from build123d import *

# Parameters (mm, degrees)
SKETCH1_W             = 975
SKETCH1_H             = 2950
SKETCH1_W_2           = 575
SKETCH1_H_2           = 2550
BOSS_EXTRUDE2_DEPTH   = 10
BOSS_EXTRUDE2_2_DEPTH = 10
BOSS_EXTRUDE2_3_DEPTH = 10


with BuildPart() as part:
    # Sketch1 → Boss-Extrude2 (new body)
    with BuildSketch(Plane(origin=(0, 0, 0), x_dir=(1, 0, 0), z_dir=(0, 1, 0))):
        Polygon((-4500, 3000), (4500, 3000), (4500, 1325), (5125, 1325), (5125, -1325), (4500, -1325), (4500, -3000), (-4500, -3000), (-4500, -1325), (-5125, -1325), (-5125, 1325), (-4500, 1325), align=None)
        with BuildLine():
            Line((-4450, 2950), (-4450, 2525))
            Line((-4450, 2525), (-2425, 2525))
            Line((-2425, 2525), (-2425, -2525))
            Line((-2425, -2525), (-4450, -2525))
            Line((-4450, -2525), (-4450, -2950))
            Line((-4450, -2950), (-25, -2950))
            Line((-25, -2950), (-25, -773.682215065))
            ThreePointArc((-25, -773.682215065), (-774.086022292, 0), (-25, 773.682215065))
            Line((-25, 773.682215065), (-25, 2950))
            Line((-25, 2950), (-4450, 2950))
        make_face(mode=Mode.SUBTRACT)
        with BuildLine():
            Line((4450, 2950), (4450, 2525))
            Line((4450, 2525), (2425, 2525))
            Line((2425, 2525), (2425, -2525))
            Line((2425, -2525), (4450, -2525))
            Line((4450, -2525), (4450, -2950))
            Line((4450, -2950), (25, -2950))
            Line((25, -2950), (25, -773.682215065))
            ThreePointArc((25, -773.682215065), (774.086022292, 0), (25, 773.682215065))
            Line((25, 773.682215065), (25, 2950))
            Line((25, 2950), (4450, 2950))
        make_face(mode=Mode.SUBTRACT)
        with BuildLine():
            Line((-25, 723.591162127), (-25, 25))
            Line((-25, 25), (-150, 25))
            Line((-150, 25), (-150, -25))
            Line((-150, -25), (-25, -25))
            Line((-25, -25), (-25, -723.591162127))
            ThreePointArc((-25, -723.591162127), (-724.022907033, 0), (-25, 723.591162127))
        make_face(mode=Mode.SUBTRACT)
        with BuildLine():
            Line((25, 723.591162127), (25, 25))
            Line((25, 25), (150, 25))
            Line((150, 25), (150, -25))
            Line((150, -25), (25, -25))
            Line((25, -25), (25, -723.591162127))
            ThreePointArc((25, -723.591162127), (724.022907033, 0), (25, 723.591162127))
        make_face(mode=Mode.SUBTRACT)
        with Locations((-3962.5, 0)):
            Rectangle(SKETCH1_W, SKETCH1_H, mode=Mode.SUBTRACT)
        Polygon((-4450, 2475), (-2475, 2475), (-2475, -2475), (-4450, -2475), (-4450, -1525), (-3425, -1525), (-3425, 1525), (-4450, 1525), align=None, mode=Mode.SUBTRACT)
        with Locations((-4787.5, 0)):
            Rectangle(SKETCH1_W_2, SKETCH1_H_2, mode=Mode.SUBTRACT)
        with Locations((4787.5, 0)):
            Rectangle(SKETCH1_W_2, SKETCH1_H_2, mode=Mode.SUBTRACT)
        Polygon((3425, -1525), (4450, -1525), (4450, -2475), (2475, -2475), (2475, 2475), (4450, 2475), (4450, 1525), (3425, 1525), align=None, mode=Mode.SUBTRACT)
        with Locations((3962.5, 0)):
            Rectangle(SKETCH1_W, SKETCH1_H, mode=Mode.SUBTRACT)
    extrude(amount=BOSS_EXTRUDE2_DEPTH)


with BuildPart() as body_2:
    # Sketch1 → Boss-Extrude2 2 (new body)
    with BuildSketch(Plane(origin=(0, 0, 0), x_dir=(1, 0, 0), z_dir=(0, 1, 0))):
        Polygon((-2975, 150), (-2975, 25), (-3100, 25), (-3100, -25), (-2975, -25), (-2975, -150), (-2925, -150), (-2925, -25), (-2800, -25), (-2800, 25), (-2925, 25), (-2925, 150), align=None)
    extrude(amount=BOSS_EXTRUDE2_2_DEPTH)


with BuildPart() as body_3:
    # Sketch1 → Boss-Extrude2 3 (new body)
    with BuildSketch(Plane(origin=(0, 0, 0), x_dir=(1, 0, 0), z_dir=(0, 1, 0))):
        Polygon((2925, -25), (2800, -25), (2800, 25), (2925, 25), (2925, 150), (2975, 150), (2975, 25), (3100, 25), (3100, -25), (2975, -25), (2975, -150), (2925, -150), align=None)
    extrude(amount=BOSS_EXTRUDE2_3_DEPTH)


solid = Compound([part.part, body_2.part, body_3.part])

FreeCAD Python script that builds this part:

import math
import FreeCAD as App
import Part
import Sketcher
from FreeCAD import Vector
Q = App.Units.Quantity


def add_polygon(sketch, points):
    """Adds a closed chain of lines whose ends are joined by coincident constraints."""
    first, n = sketch.GeometryCount, len(points)
    for a, b in zip(points, points[1:] + points[:1]):
        sketch.addGeometry(Part.LineSegment(App.Vector(*a, 0), App.Vector(*b, 0)), False)
    for i in range(n):
        sketch.addConstraint(Sketcher.Constraint("Coincident", first + i, 2, first + (i + 1) % n, 1))

doc = App.newDocument("Part")
body = doc.addObject("PartDesign::Body", "Body")

sketch1 = body.newObject("Sketcher::SketchObject", "Sketch")
sketch1.AttachmentSupport = (doc.getObject("XZ_Plane"), [""])
sketch1.MapMode = "FlatFace"
add_polygon(sketch1, [(4500, -3000), (-4500, -3000), (-4500, -1325), (-5125, -1325), (-5125, 1325), (-4500, 1325), (-4500, 3000), (4500, 3000), (4500, 1325), (5125, 1325), (5125, -1325), (4500, -1325)])
add_polygon(sketch1, [(4500, 1275), (4500, -1275), (5075, -1275), (5075, 1275)])
add_polygon(sketch1, [(3475, 1475), (3475, -1475), (4450, -1475), (4450, 1475)])
add_polygon(sketch1, [(3425, 1525), (4450, 1525), (4450, 2475), (2475, 2475), (2475, -2475), (4450, -2475), (4450, -1525), (3425, -1525)])
sketch1.addGeometry(Part.LineSegment(Vector(4450, -2950, 0), Vector(4450, -2525, 0)), False)
sketch1.addGeometry(Part.LineSegment(Vector(4450, -2525, 0), Vector(2425, -2525, 0)), False)
sketch1.addGeometry(Part.LineSegment(Vector(2425, -2525, 0), Vector(2425, 2525, 0)), False)
sketch1.addGeometry(Part.LineSegment(Vector(2425, 2525, 0), Vector(4450, 2525, 0)), False)
sketch1.addGeometry(Part.LineSegment(Vector(4450, 2525, 0), Vector(4450, 2950, 0)), False)
sketch1.addGeometry(Part.LineSegment(Vector(4450, 2950, 0), Vector(25, 2950, 0)), False)
sketch1.addGeometry(Part.LineSegment(Vector(25, 2950, 0), Vector(25, 774, 0)), False)
sketch1.addGeometry(Part.ArcOfCircle(Part.Circle(Vector(0, 0, 0), Vector(0, 0, 1), 774), math.radians(-88), math.radians(88)), False)
sketch1.addGeometry(Part.LineSegment(Vector(25, -774, 0), Vector(25, -2950, 0)), False)
sketch1.addGeometry(Part.LineSegment(Vector(25, -2950, 0), Vector(4450, -2950, 0)), False)
sketch1.addGeometry(Part.ArcOfCircle(Part.Circle(Vector(0, 0, 0), Vector(0, 0, 1), 724), math.radians(-88), math.radians(88)), False)
sketch1.addGeometry(Part.LineSegment(Vector(25, 724, 0), Vector(25, 25, 0)), False)
sketch1.addGeometry(Part.LineSegment(Vector(25, 25, 0), Vector(150, 25, 0)), False)
sketch1.addGeometry(Part.LineSegment(Vector(150, 25, 0), Vector(150, -25, 0)), False)
sketch1.addGeometry(Part.LineSegment(Vector(150, -25, 0), Vector(25, -25, 0)), False)
sketch1.addGeometry(Part.LineSegment(Vector(25, -25, 0), Vector(25, -724, 0)), False)
sketch1.addGeometry(Part.LineSegment(Vector(-25, -724, 0), Vector(-25, -25, 0)), False)
sketch1.addGeometry(Part.LineSegment(Vector(-25, -25, 0), Vector(-150, -25, 0)), False)
sketch1.addGeometry(Part.LineSegment(Vector(-150, -25, 0), Vector(-150, 25, 0)), False)
sketch1.addGeometry(Part.LineSegment(Vector(-150, 25, 0), Vector(-25, 25, 0)), False)
sketch1.addGeometry(Part.LineSegment(Vector(-25, 25, 0), Vector(-25, 724, 0)), False)
sketch1.addGeometry(Part.ArcOfCircle(Part.Circle(Vector(0, 0, 0), Vector(0, 0, 1), 724), math.radians(92), math.radians(268)), False)
sketch1.addGeometry(Part.LineSegment(Vector(-4450, -2950, 0), Vector(-25, -2950, 0)), False)
sketch1.addGeometry(Part.LineSegment(Vector(-25, -2950, 0), Vector(-25, -774, 0)), False)
sketch1.addGeometry(Part.ArcOfCircle(Part.Circle(Vector(0, 0, 0), Vector(0, 0, 1), 774), math.radians(92), math.radians(268)), False)
sketch1.addGeometry(Part.LineSegment(Vector(-25, 774, 0), Vector(-25, 2950, 0)), False)
sketch1.addGeometry(Part.LineSegment(Vector(-25, 2950, 0), Vector(-4450, 2950, 0)), False)
sketch1.addGeometry(Part.LineSegment(Vector(-4450, 2950, 0), Vector(-4450, 2525, 0)), False)
sketch1.addGeometry(Part.LineSegment(Vector(-4450, 2525, 0), Vector(-2425, 2525, 0)), False)
sketch1.addGeometry(Part.LineSegment(Vector(-2425, 2525, 0), Vector(-2425, -2525, 0)), False)
sketch1.addGeometry(Part.LineSegment(Vector(-2425, -2525, 0), Vector(-4450, -2525, 0)), False)
sketch1.addGeometry(Part.LineSegment(Vector(-4450, -2525, 0), Vector(-4450, -2950, 0)), False)
add_polygon(sketch1, [(-4450, -2475), (-2475, -2475), (-2475, 2475), (-4450, 2475), (-4450, 1525), (-3425, 1525), (-3425, -1525), (-4450, -1525)])
add_polygon(sketch1, [(-4450, 1475), (-4450, -1475), (-3475, -1475), (-3475, 1475)])
add_polygon(sketch1, [(-5075, 1275), (-5075, -1275), (-4500, -1275), (-4500, 1275)])
sketch1.addConstraint(Sketcher.Constraint("Coincident", 28, 2, 29, 1))
sketch1.addConstraint(Sketcher.Constraint("Coincident", 29, 2, 30, 1))
sketch1.addConstraint(Sketcher.Constraint("Coincident", 30, 2, 31, 1))
sketch1.addConstraint(Sketcher.Constraint("Coincident", 31, 2, 32, 1))
sketch1.addConstraint(Sketcher.Constraint("Coincident", 32, 2, 33, 1))
sketch1.addConstraint(Sketcher.Constraint("Coincident", 33, 2, 34, 1))
sketch1.addConstraint(Sketcher.Constraint("Coincident", 34, 2, 35, 2))
sketch1.addConstraint(Sketcher.Constraint("Coincident", 35, 1, 36, 1))
sketch1.addConstraint(Sketcher.Constraint("Coincident", 36, 2, 37, 1))
sketch1.addConstraint(Sketcher.Constraint("Coincident", 37, 2, 28, 1))
sketch1.addConstraint(Sketcher.Constraint("Coincident", 38, 2, 39, 1))
sketch1.addConstraint(Sketcher.Constraint("Coincident", 39, 2, 40, 1))
sketch1.addConstraint(Sketcher.Constraint("Coincident", 40, 2, 41, 1))
sketch1.addConstraint(Sketcher.Constraint("Coincident", 41, 2, 42, 1))
sketch1.addConstraint(Sketcher.Constraint("Coincident", 42, 2, 43, 1))
sketch1.addConstraint(Sketcher.Constraint("Coincident", 43, 2, 38, 1))
sketch1.addConstraint(Sketcher.Constraint("Coincident", 44, 2, 45, 1))
sketch1.addConstraint(Sketcher.Constraint("Coincident", 45, 2, 46, 1))
sketch1.addConstraint(Sketcher.Constraint("Coincident", 46, 2, 47, 1))
sketch1.addConstraint(Sketcher.Constraint("Coincident", 47, 2, 48, 1))
sketch1.addConstraint(Sketcher.Constraint("Coincident", 48, 2, 49, 1))
sketch1.addConstraint(Sketcher.Constraint("Coincident", 49, 2, 44, 1))
sketch1.addConstraint(Sketcher.Constraint("Coincident", 50, 2, 51, 1))
sketch1.addConstraint(Sketcher.Constraint("Coincident", 51, 2, 52, 2))
sketch1.addConstraint(Sketcher.Constraint("Coincident", 52, 1, 53, 1))
sketch1.addConstraint(Sketcher.Constraint("Coincident", 53, 2, 54, 1))
sketch1.addConstraint(Sketcher.Constraint("Coincident", 54, 2, 55, 1))
sketch1.addConstraint(Sketcher.Constraint("Coincident", 55, 2, 56, 1))
sketch1.addConstraint(Sketcher.Constraint("Coincident", 56, 2, 57, 1))
sketch1.addConstraint(Sketcher.Constraint("Coincident", 57, 2, 58, 1))
sketch1.addConstraint(Sketcher.Constraint("Coincident", 58, 2, 59, 1))
sketch1.addConstraint(Sketcher.Constraint("Coincident", 59, 2, 50, 1))
sketch1.addConstraint(Sketcher.Constraint("Horizontal", 0))
sketch1.addConstraint(Sketcher.Constraint("Vertical", 1))
sketch1.addConstraint(Sketcher.Constraint("Horizontal", 2))
sketch1.addConstraint(Sketcher.Constraint("Vertical", 3))
sketch1.addConstraint(Sketcher.Constraint("Horizontal", 4))
sketch1.addConstraint(Sketcher.Constraint("Vertical", 5))
sketch1.addConstraint(Sketcher.Constraint("Horizontal", 6))
sketch1.addConstraint(Sketcher.Constraint("Vertical", 7))
sketch1.addConstraint(Sketcher.Constraint("Horizontal", 8))
sketch1.addConstraint(Sketcher.Constraint("Vertical", 9))
sketch1.addConstraint(Sketcher.Constraint("Horizontal", 10))
sketch1.addConstraint(Sketcher.Constraint("Vertical", 11))
sketch1.addConstraint(Sketcher.Constraint("Vertical", 12))
sketch1.addConstraint(Sketcher.Constraint("Horizontal", 13))
sketch1.addConstraint(Sketcher.Constraint("Vertical", 14))
sketch1.addConstraint(Sketcher.Constraint("Horizontal", 15))
sketch1.addConstraint(Sketcher.Constraint("Vertical", 16))
sketch1.addConstraint(Sketcher.Constraint("Horizontal", 17))
sketch1.addConstraint(Sketcher.Constraint("Vertical", 18))
sketch1.addConstraint(Sketcher.Constraint("Horizontal", 19))
sketch1.addConstraint(Sketcher.Constraint("Horizontal", 20))
sketch1.addConstraint(Sketcher.Constraint("Vertical", 21))
sketch1.addConstraint(Sketcher.Constraint("Horizontal", 22))
sketch1.addConstraint(Sketcher.Constraint("Vertical", 23))
sketch1.addConstraint(Sketcher.Constraint("Horizontal", 24))
sketch1.addConstraint(Sketcher.Constraint("Vertical", 25))
sketch1.addConstraint(Sketcher.Constraint("Horizontal", 26))
sketch1.addConstraint(Sketcher.Constraint("Vertical", 27))
sketch1.addConstraint(Sketcher.Constraint("Vertical", 28))
sketch1.addConstraint(Sketcher.Constraint("Horizontal", 29))
sketch1.addConstraint(Sketcher.Constraint("Vertical", 30))
sketch1.addConstraint(Sketcher.Constraint("Horizontal", 31))
sketch1.addConstraint(Sketcher.Constraint("Vertical", 32))
sketch1.addConstraint(Sketcher.Constraint("Horizontal", 33))
sketch1.addConstraint(Sketcher.Constraint("Vertical", 34))
sketch1.addConstraint(Sketcher.Constraint("Vertical", 36))
sketch1.addConstraint(Sketcher.Constraint("Horizontal", 37))
sketch1.addConstraint(Sketcher.Constraint("Vertical", 39))
sketch1.addConstraint(Sketcher.Constraint("Horizontal", 40))
sketch1.addConstraint(Sketcher.Constraint("Vertical", 41))
sketch1.addConstraint(Sketcher.Constraint("Horizontal", 42))
sketch1.addConstraint(Sketcher.Constraint("Vertical", 43))
sketch1.addConstraint(Sketcher.Constraint("Vertical", 44))
sketch1.addConstraint(Sketcher.Constraint("Horizontal", 45))
sketch1.addConstraint(Sketcher.Constraint("Vertical", 46))
sketch1.addConstraint(Sketcher.Constraint("Horizontal", 47))
sketch1.addConstraint(Sketcher.Constraint("Vertical", 48))
sketch1.addConstraint(Sketcher.Constraint("Horizontal", 50))
sketch1.addConstraint(Sketcher.Constraint("Vertical", 51))
sketch1.addConstraint(Sketcher.Constraint("Vertical", 53))
sketch1.addConstraint(Sketcher.Constraint("Horizontal", 54))
sketch1.addConstraint(Sketcher.Constraint("Vertical", 55))
sketch1.addConstraint(Sketcher.Constraint("Horizontal", 56))
sketch1.addConstraint(Sketcher.Constraint("Vertical", 57))
sketch1.addConstraint(Sketcher.Constraint("Horizontal", 58))
sketch1.addConstraint(Sketcher.Constraint("Vertical", 59))
sketch1.addConstraint(Sketcher.Constraint("Horizontal", 60))
sketch1.addConstraint(Sketcher.Constraint("Vertical", 61))
sketch1.addConstraint(Sketcher.Constraint("Horizontal", 62))
sketch1.addConstraint(Sketcher.Constraint("Vertical", 63))
sketch1.addConstraint(Sketcher.Constraint("Horizontal", 64))
sketch1.addConstraint(Sketcher.Constraint("Vertical", 65))
sketch1.addConstraint(Sketcher.Constraint("Horizontal", 66))
sketch1.addConstraint(Sketcher.Constraint("Vertical", 67))
sketch1.addConstraint(Sketcher.Constraint("Vertical", 68))
sketch1.addConstraint(Sketcher.Constraint("Horizontal", 69))
sketch1.addConstraint(Sketcher.Constraint("Vertical", 70))
sketch1.addConstraint(Sketcher.Constraint("Horizontal", 71))
sketch1.addConstraint(Sketcher.Constraint("Vertical", 72))
sketch1.addConstraint(Sketcher.Constraint("Horizontal", 73))
sketch1.addConstraint(Sketcher.Constraint("Vertical", 74))
sketch1.addConstraint(Sketcher.Constraint("Horizontal", 75))
sketch1.addConstraint(Sketcher.Constraint("Coincident", 35, 3, -1, 1))
sketch1.addConstraint(Sketcher.Constraint("Coincident", 38, 3, -1, 1))
sketch1.addConstraint(Sketcher.Constraint("Coincident", 49, 3, -1, 1))
sketch1.addConstraint(Sketcher.Constraint("Coincident", 52, 3, -1, 1))
sketch1.addConstraint(Sketcher.Constraint("Equal", 38, 49))
sketch1.addConstraint(Sketcher.Constraint("Equal", 35, 52))
sketch1.addConstraint(Sketcher.Constraint("Symmetric", 0, 2, 6, 2, -1, 1))
sketch1.addConstraint(Sketcher.Constraint("Symmetric", 2, 2, 8, 2, -1, 1))
sketch1.addConstraint(Sketcher.Constraint("Symmetric", 4, 2, 10, 2, -1, 1))
sketch1.addConstraint(Sketcher.Constraint("Symmetric", 39, 2, 44, 2, -1, 1))
sketch1.addConstraint(Sketcher.Constraint("Symmetric", 41, 2, 46, 2, -1, 1))
sketch1.addConstraint(Sketcher.Constraint("Symmetric", 33, 2, 50, 2, -1, 1))
sketch1.addConstraint(Sketcher.Constraint("Symmetric", 36, 2, 53, 2, -1, 1))
sketch1.addConstraint(Sketcher.Constraint("Symmetric", 28, 2, 55, 2, -1, 1))
sketch1.addConstraint(Sketcher.Constraint("Symmetric", 30, 2, 57, 2, -1, 1))
sketch1.addConstraint(Sketcher.Constraint("Symmetric", 22, 2, 60, 2, -1, 1))
sketch1.addConstraint(Sketcher.Constraint("Symmetric", 24, 2, 62, 2, -1, 1))
sketch1.addConstraint(Sketcher.Constraint("Symmetric", 26, 2, 64, 2, -1, 1))
sketch1.addConstraint(Sketcher.Constraint("Symmetric", 20, 2, 66, 2, -1, 1))
sketch1.addConstraint(Sketcher.Constraint("Symmetric", 18, 2, 68, 2, -1, 1))
sketch1.addConstraint(Sketcher.Constraint("Symmetric", 16, 2, 70, 2, -1, 1))
sketch1.addConstraint(Sketcher.Constraint("Symmetric", 14, 2, 72, 2, -1, 1))
sketch1.addConstraint(Sketcher.Constraint("Symmetric", 12, 2, 74, 2, -1, 1))
sketch1.addConstraint(Sketcher.Constraint("Symmetric", 4, 2, 7, 2, -2))
sketch1.addConstraint(Sketcher.Constraint("Symmetric", 42, 2, 44, 2, -2))
sketch1.addConstraint(Sketcher.Constraint("Symmetric", 36, 2, 50, 2, -2))
sketch1.addConstraint(Sketcher.Constraint("Symmetric", 31, 2, 55, 2, -2))
sketch1.addConstraint(Sketcher.Constraint("Symmetric", 21, 2, 62, 2, -2))
sketch1.addConstraint(Sketcher.Constraint("Horizontal", 27, 2, 63, 2))
sketch1.addConstraint(Sketcher.Constraint("Horizontal", 17, 2, 68, 2))
sketch1.addConstraint(Sketcher.Constraint("Horizontal", 13, 2, 72, 2))
sketch1.addConstraint(Sketcher.Constraint("Vertical", 11, 2, 12, 2))
sketch1.addConstraint(Sketcher.Constraint("Vertical", 18, 2, 20, 2))
sketch1.addConstraint(Sketcher.Constraint("Vertical", 25, 2, 28, 2))
sketch1.addConstraint(Sketcher.Constraint("Vertical", 44, 2, 47, 2))
sketch1.addConstraint(Sketcher.Constraint("Vertical", 55, 2, 58, 2))
sketch1.addConstraint(Sketcher.Constraint("DistanceX", 0, 2, 0, 1, Q("9000 mm")))
sketch1.addConstraint(Sketcher.Constraint("DistanceX", 2, 2, 2, 1, Q("625 mm")))
sketch1.addConstraint(Sketcher.Constraint("DistanceX", 13, 1, 13, 2, Q("575 mm")))
sketch1.addConstraint(Sketcher.Constraint("DistanceX", 17, 1, 17, 2, Q("975 mm")))
sketch1.addConstraint(Sketcher.Constraint("DistanceX", 20, 1, 20, 2, Q("1025 mm")))
sketch1.addConstraint(Sketcher.Constraint("DistanceX", 22, 2, 22, 1, Q("1975 mm")))
sketch1.addConstraint(Sketcher.Constraint("DistanceX", 29, 2, 29, 1, Q("2025 mm")))
sketch1.addConstraint(Sketcher.Constraint("DistanceX", 33, 2, 33, 1, Q("4425 mm")))
sketch1.addConstraint(Sketcher.Constraint("DistanceX", 40, 1, 40, 2, Q("125 mm")))
sketch1.addConstraint(Sketcher.Constraint("DistanceY", 1, 1, 1, 2, Q("1675 mm")))
sketch1.addConstraint(Sketcher.Constraint("DistanceY", 3, 1, 3, 2, Q("2650 mm")))
sketch1.addConstraint(Sketcher.Constraint("DistanceY", 12, 2, 12, 1, Q("2550 mm")))
sketch1.addConstraint(Sketcher.Constraint("DistanceY", 16, 2, 16, 1, Q("2950 mm")))
sketch1.addConstraint(Sketcher.Constraint("DistanceY", 21, 1, 21, 2, Q("950 mm")))
sketch1.addConstraint(Sketcher.Constraint("DistanceY", 23, 2, 23, 1, Q("4950 mm")))
sketch1.addConstraint(Sketcher.Constraint("DistanceY", 28, 1, 28, 2, Q("425 mm")))
sketch1.addConstraint(Sketcher.Constraint("DistanceY", 30, 1, 30, 2, Q("5050 mm")))
sketch1.addConstraint(Sketcher.Constraint("DistanceY", 41, 2, 41, 1, Q("50 mm")))
sketch1.addConstraint(Sketcher.Constraint("DistanceX", -1, 1, 16, 2, Q("3475 mm")))
sketch1.addConstraint(Sketcher.Constraint("DistanceX", -1, 1, 39, 2, Q("25 mm")))
sketch1.addConstraint(Sketcher.Constraint("Radius", 35, Q("774.086022 mm")))
sketch1.addConstraint(Sketcher.Constraint("Radius", 38, Q("724.022907 mm")))
pad1 = body.newObject("PartDesign::Pad", "Pad")
pad1.Profile = sketch1
pad1.Length = 10
pad1.Reversed = True
body2 = doc.addObject("PartDesign::Body", "Body001")

sketch2 = body2.newObject("Sketcher::SketchObject", "Sketch001")
sketch2.AttachmentSupport = (doc.getObject("XZ_Plane001"), [""])
sketch2.MapMode = "FlatFace"
add_polygon(sketch2, [(-2975, -150), (-2975, -25), (-3100, -25), (-3100, 25), (-2975, 25), (-2975, 150), (-2925, 150), (-2925, 25), (-2800, 25), (-2800, -25), (-2925, -25), (-2925, -150)])
sketch2.addConstraint(Sketcher.Constraint("Vertical", 0))
sketch2.addConstraint(Sketcher.Constraint("Horizontal", 1))
sketch2.addConstraint(Sketcher.Constraint("Vertical", 2))
sketch2.addConstraint(Sketcher.Constraint("Horizontal", 3))
sketch2.addConstraint(Sketcher.Constraint("Vertical", 4))
sketch2.addConstraint(Sketcher.Constraint("Horizontal", 5))
sketch2.addConstraint(Sketcher.Constraint("Vertical", 6))
sketch2.addConstraint(Sketcher.Constraint("Horizontal", 7))
sketch2.addConstraint(Sketcher.Constraint("Vertical", 8))
sketch2.addConstraint(Sketcher.Constraint("Horizontal", 9))
sketch2.addConstraint(Sketcher.Constraint("Vertical", 10))
sketch2.addConstraint(Sketcher.Constraint("Horizontal", 11))
sketch2.addConstraint(Sketcher.Constraint("Symmetric", 0, 2, 3, 2, -1))
sketch2.addConstraint(Sketcher.Constraint("Symmetric", 6, 2, 9, 2, -1))
sketch2.addConstraint(Sketcher.Constraint("Horizontal", 3, 2, 6, 2))
sketch2.addConstraint(Sketcher.Constraint("Equal", 3, 7))
sketch2.addConstraint(Sketcher.Constraint("Equal", 9, 0))
sketch2.addConstraint(Sketcher.Constraint("Equal", 11, 2))
sketch2.addConstraint(Sketcher.Constraint("Equal", 0, 4))
sketch2.addConstraint(Sketcher.Constraint("DistanceX", 1, 2, 1, 1, Q("125 mm")))
sketch2.addConstraint(Sketcher.Constraint("DistanceX", 5, 1, 5, 2, Q("50 mm")))
sketch2.addConstraint(Sketcher.Constraint("DistanceX", 0, 2, -1, 1, Q("2975 mm")))
pad2 = body2.newObject("PartDesign::Pad", "Pad001")
pad2.Profile = sketch2
pad2.Length = 10
pad2.Reversed = True
body3 = doc.addObject("PartDesign::Body", "Body002")

sketch3 = body3.newObject("Sketcher::SketchObject", "Sketch002")
sketch3.AttachmentSupport = (doc.getObject("XZ_Plane002"), [""])
sketch3.MapMode = "FlatFace"
add_polygon(sketch3, [(2800, 25), (2925, 25), (2925, 150), (2975, 150), (2975, 25), (3100, 25), (3100, -25), (2975, -25), (2975, -150), (2925, -150), (2925, -25), (2800, -25)])
sketch3.addConstraint(Sketcher.Constraint("Horizontal", 0))
sketch3.addConstraint(Sketcher.Constraint("Vertical", 1))
sketch3.addConstraint(Sketcher.Constraint("Horizontal", 2))
sketch3.addConstraint(Sketcher.Constraint("Vertical", 3))
sketch3.addConstraint(Sketcher.Constraint("Horizontal", 4))
sketch3.addConstraint(Sketcher.Constraint("Vertical", 5))
sketch3.addConstraint(Sketcher.Constraint("Horizontal", 6))
sketch3.addConstraint(Sketcher.Constraint("Vertical", 7))
sketch3.addConstraint(Sketcher.Constraint("Horizontal", 8))
sketch3.addConstraint(Sketcher.Constraint("Vertical", 9))
sketch3.addConstraint(Sketcher.Constraint("Horizontal", 10))
sketch3.addConstraint(Sketcher.Constraint("Vertical", 11))
sketch3.addConstraint(Sketcher.Constraint("Symmetric", 3, 2, 6, 2, -1))
sketch3.addConstraint(Sketcher.Constraint("Symmetric", 1, 2, 8, 2, -1))
sketch3.addConstraint(Sketcher.Constraint("Horizontal", 0, 2, 3, 2))
sketch3.addConstraint(Sketcher.Constraint("Horizontal", 6, 2, 9, 2))
sketch3.addConstraint(Sketcher.Constraint("Equal", 0, 4))
sketch3.addConstraint(Sketcher.Constraint("Equal", 10, 1))
sketch3.addConstraint(Sketcher.Constraint("Equal", 8, 5))
sketch3.addConstraint(Sketcher.Constraint("DistanceX", 0, 1, 0, 2, Q("125 mm")))
sketch3.addConstraint(Sketcher.Constraint("DistanceX", 2, 1, 2, 2, Q("50 mm")))
sketch3.addConstraint(Sketcher.Constraint("DistanceX", -1, 1, 0, 2, Q("2925 mm")))
pad3 = body3.newObject("PartDesign::Pad", "Pad002")
pad3.Profile = sketch3
pad3.Length = 10
pad3.Reversed = True

doc.recompute()
